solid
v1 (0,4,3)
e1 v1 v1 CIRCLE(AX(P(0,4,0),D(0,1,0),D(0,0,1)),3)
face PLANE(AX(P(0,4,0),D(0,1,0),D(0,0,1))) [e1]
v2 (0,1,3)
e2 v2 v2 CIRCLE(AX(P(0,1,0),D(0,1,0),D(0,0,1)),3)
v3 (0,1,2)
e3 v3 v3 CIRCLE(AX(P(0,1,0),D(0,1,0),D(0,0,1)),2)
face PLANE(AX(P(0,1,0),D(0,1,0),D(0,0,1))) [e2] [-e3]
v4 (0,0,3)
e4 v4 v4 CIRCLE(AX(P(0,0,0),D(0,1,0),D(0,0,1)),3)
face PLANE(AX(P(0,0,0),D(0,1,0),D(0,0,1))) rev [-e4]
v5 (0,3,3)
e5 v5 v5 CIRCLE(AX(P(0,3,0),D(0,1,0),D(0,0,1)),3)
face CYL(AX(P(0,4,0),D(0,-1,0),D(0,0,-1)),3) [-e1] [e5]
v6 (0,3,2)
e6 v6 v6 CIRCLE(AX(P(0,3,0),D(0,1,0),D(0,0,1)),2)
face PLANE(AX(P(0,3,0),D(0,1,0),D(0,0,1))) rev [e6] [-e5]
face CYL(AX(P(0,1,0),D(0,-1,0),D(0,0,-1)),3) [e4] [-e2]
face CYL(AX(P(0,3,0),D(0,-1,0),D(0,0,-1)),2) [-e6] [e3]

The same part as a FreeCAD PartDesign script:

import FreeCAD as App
import Part
import Sketcher

V = App.Vector

doc = App.newDocument("Part")
body = doc.addObject("PartDesign::Body", "Body")

sketch1 = body.newObject("Sketcher::SketchObject", "Sketch")
sketch1.AttachmentSupport = (doc.getObject("XZ_Plane"), [""])
sketch1.MapMode = "FlatFace"
sketch1.addGeometry(Part.Circle(V(0, 0, 0), V(0, 0, 1), 3), False)
sketch1.addConstraint(Sketcher.Constraint("Coincident", 0, 3, -1, 1))
sketch1.addConstraint(Sketcher.Constraint("Diameter", 0, 6.0))
pad1 = body.newObject("PartDesign::Pad", "Pad")
pad1.Profile = sketch1
pad1.Length = 1
pad1.Reversed = True

sketch2 = body.newObject("Sketcher::SketchObject", "Sketch001")
sketch2.AttachmentSupport = (doc.getObject("XZ_Plane"), [""])
sketch2.MapMode = "FlatFace"
sketch2.AttachmentOffset = App.Placement(V(0, 0, -1), App.Rotation())
sketch2.addGeometry(Part.Circle(V(0, 0, 0), V(0, 0, 1), 2), False)
sketch2.addConstraint(Sketcher.Constraint("Coincident", 0, 3, -1, 1))
sketch2.addConstraint(Sketcher.Constraint("Diameter", 0, 4.0))
pad2 = body.newObject("PartDesign::Pad", "Pad001")
pad2.Profile = sketch2
pad2.Length = 2
pad2.Reversed = True

sketch3 = body.newObject("Sketcher::SketchObject", "Sketch002")
sketch3.AttachmentSupport = (doc.getObject("XZ_Plane"), [""])
sketch3.MapMode = "FlatFace"
sketch3.AttachmentOffset = App.Placement(V(0, 0, -3), App.Rotation())
sketch3.addGeometry(Part.Circle(V(0, 0, 0), V(0, 0, 1), 3), False)
sketch3.addConstraint(Sketcher.Constraint("Coincident", 0, 3, -1, 1))
sketch3.addConstraint(Sketcher.Constraint("Diameter", 0, 6.0))
pad3 = body.newObject("PartDesign::Pad", "Pad002")
pad3.Profile = sketch3
pad3.Length = 1
pad3.Reversed = True

doc.recompute()
